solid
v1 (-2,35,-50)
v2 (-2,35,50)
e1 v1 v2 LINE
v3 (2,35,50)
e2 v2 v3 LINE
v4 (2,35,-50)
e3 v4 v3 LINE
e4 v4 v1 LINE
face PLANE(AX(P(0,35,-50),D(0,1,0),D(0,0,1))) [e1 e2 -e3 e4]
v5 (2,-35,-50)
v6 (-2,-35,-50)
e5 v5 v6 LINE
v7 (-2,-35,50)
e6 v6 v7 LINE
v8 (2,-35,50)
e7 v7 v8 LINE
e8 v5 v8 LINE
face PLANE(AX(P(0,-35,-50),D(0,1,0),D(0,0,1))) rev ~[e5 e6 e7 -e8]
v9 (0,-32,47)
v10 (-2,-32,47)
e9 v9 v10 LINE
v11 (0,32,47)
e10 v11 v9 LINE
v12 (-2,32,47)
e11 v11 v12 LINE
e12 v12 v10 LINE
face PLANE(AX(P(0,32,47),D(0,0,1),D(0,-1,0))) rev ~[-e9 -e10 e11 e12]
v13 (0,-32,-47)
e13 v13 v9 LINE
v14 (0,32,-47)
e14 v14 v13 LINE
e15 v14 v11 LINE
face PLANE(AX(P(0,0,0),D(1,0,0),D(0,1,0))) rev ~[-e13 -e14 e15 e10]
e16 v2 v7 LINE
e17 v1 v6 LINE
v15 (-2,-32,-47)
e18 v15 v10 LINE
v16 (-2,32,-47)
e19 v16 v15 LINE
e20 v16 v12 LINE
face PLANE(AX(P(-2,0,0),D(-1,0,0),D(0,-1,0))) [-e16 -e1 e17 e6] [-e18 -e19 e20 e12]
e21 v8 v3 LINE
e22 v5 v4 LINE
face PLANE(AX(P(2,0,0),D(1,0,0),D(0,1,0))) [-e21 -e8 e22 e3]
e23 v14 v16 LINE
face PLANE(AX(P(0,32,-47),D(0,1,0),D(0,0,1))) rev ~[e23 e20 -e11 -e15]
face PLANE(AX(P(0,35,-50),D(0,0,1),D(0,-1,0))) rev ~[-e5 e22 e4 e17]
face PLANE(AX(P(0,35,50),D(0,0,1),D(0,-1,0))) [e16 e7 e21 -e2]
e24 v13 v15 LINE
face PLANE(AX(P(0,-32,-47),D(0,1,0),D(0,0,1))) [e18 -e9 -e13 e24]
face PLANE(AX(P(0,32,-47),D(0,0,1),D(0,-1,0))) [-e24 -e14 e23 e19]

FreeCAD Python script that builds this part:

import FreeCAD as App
import Part
import Sketcher
Q = App.Units.Quantity

doc = App.newDocument("Part")
body = doc.addObject("PartDesign::Body", "Body")

# Sketch on YZ plane
sketch1 = doc.addObject("Sketcher::SketchObject", "Sketch")
body.addObject(sketch1)
sketch1.AttachmentSupport = (doc.YZ_Plane, [""])
sketch1.MapMode = "FlatFace"
sketch1.addGeometry([
    Part.LineSegment(App.Vector(-35, 50, 0), App.Vector(-35, -50, 0)),
    Part.LineSegment(App.Vector(-35, -50, 0), App.Vector(35, -50, 0)),
    Part.LineSegment(App.Vector(35, -50, 0), App.Vector(35, 50, 0)),
    Part.LineSegment(App.Vector(35, 50, 0), App.Vector(-35, 50, 0)),
], False)
sketch1.addConstraint([
    Sketcher.Constraint("Coincident", 0, 2, 1, 1),
    Sketcher.Constraint("Coincident", 1, 2, 2, 1),
    Sketcher.Constraint("Coincident", 2, 2, 3, 1),
    Sketcher.Constraint("Coincident", 3, 2, 0, 1),
    Sketcher.Constraint("Vertical", 0),
    Sketcher.Constraint("Horizontal", 1),
    Sketcher.Constraint("Vertical", 2),
    Sketcher.Constraint("Horizontal", 3),
    Sketcher.Constraint("Symmetric", 0, 2, 2, 2, -1, 1),
    Sketcher.Constraint("DistanceX", 1, 1, 1, 2, Q("70 mm")),
    Sketcher.Constraint("DistanceY", 0, 2, 0, 1, Q("100 mm")),
])
pad1 = doc.addObject("PartDesign::Pad", "Pad")
body.addObject(pad1)
pad1.Profile = sketch1
pad1.Length = 2

# Sketch on YZ plane
sketch2 = doc.addObject("Sketcher::SketchObject", "Sketch001")
body.addObject(sketch2)
sketch2.AttachmentSupport = (doc.YZ_Plane, [""])
sketch2.MapMode = "FlatFace"
sketch2.addGeometry([
    Part.LineSegment(App.Vector(35, 50, 0), App.Vector(35, -50, 0)),  # 0
    Part.LineSegment(App.Vector(35, -50, 0), App.Vector(-35, -50, 0)),  # 1
    Part.LineSegment(App.Vector(-35, -50, 0), App.Vector(-35, 50, 0)),  # 2
    Part.LineSegment(App.Vector(-35, 50, 0), App.Vector(35, 50, 0)),  # 3
    Part.LineSegment(App.Vector(-32, -47, 0), App.Vector(32, -47, 0)),  # 4
    Part.LineSegment(App.Vector(32, -47, 0), App.Vector(32, 47, 0)),  # 5
    Part.LineSegment(App.Vector(32, 47, 0), App.Vector(-32, 47, 0)),  # 6
    Part.LineSegment(App.Vector(-32, 47, 0), App.Vector(-32, -47, 0)),  # 7
], False)
sketch2.addConstraint([
    Sketcher.Constraint("Coincident", 0, 2, 1, 1),
    Sketcher.Constraint("Coincident", 1, 2, 2, 1),
    Sketcher.Constraint("Coincident", 2, 2, 3, 1),
    Sketcher.Constraint("Coincident", 3, 2, 0, 1),
    Sketcher.Constraint("Coincident", 4, 2, 5, 1),
    Sketcher.Constraint("Coincident", 5, 2, 6, 1),
    Sketcher.Constraint("Coincident", 6, 2, 7, 1),
    Sketcher.Constraint("Coincident", 7, 2, 4, 1),
    Sketcher.Constraint("Vertical", 0),
    Sketcher.Constraint("Horizontal", 1),
    Sketcher.Constraint("Vertical", 2),
    Sketcher.Constraint("Horizontal", 3),
    Sketcher.Constraint("Horizontal", 4),
    Sketcher.Constraint("Vertical", 5),
    Sketcher.Constraint("Horizontal", 6),
    Sketcher.Constraint("Vertical", 7),
    Sketcher.Constraint("Symmetric", 0, 2, 2, 2, -1, 1),
    Sketcher.Constraint("Symmetric", 4, 2, 6, 2, -1, 1),
    Sketcher.Constraint("DistanceX", 1, 2, 1, 1, Q("70 mm")),
    Sketcher.Constraint("DistanceX", 4, 1, 4, 2, Q("64 mm")),
    Sketcher.Constraint("DistanceY", 0, 2, 0, 1, Q("100 mm")),
    Sketcher.Constraint("DistanceY", 5, 1, 5, 2, Q("94 mm")),
])
pad2 = doc.addObject("PartDesign::Pad", "Pad001")
body.addObject(pad2)
pad2.Profile = sketch2
pad2.Length = 2
pad2.Reversed = True

doc.recompute()
